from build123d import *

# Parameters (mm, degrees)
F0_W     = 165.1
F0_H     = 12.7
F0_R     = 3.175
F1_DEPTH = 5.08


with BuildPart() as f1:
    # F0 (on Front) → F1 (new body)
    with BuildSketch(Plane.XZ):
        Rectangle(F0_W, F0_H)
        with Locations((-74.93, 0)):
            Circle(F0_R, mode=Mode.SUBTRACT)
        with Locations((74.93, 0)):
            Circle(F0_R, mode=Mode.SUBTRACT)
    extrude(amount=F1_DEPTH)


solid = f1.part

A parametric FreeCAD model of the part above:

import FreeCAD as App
import Part
import Sketcher

V = App.Vector
Q = App.Units.Quantity


def add_polygon(sketch, points):
    """Adds a closed chain of lines whose ends are joined by coincident constraints."""
    first, n = sketch.GeometryCount, len(points)
    for a, b in zip(points, points[1:] + points[:1]):
        sketch.addGeometry(Part.LineSegment(App.Vector(*a, 0), App.Vector(*b, 0)), False)
    for i in range(n):
        sketch.addConstraint(Sketcher.Constraint("Coincident", first + i, 2, first + (i + 1) % n, 1))

doc = App.newDocument("Part")
body = doc.addObject("PartDesign::Body", "Body")

sketch1 = doc.addObject("Sketcher::SketchObject", "Sketch")
body.addObject(sketch1)
sketch1.AttachmentSupport = (doc.XZ_Plane, [""])
sketch1.MapMode = "FlatFace"
add_polygon(sketch1, [(-82.5, 6.3), (-82.5, -6.3), (82.5, -6.3), (82.5, 6.3)])
sketch1.addGeometry(Part.Circle(V(-74.9, 0, 0), V(0, 0, 1), 3.2), False)
sketch1.addGeometry(Part.Circle(V(74.9, 0, 0), V(0, 0, 1), 3.2), False)
sketch1.addConstraint(Sketcher.Constraint("Vertical", 0))
sketch1.addConstraint(Sketcher.Constraint("Horizontal", 1))
sketch1.addConstraint(Sketcher.Constraint("Vertical", 2))
sketch1.addConstraint(Sketcher.Constraint("Horizontal", 3))
sketch1.addConstraint(Sketcher.Constraint("Equal", 4, 5))
sketch1.addConstraint(Sketcher.Constraint("Symmetric", 4, 3, 5, 3, -1, 1))
sketch1.addConstraint(Sketcher.Constraint("Symmetric", 0, 2, 2, 2, -1, 1))
sketch1.addConstraint(Sketcher.Constraint("PointOnObject", 4, 3, -1))
sketch1.addConstraint(Sketcher.Constraint("Diameter", 4, Q("0.25 in")))
sketch1.addConstraint(Sketcher.Constraint("DistanceX", 1, 1, 1, 2, Q("6.5 in")))
sketch1.addConstraint(Sketcher.Constraint("DistanceY", 0, 2, 0, 1, Q("0.5 in")))
sketch1.addConstraint(Sketcher.Constraint("DistanceX", 4, 3, 5, 3, Q("5.9 in")))
pad1 = doc.addObject("PartDesign::Pad", "Pad")
body.addObject(pad1)
pad1.Profile = sketch1
pad1.Length = Q("0.2 in")

doc.recompute()
